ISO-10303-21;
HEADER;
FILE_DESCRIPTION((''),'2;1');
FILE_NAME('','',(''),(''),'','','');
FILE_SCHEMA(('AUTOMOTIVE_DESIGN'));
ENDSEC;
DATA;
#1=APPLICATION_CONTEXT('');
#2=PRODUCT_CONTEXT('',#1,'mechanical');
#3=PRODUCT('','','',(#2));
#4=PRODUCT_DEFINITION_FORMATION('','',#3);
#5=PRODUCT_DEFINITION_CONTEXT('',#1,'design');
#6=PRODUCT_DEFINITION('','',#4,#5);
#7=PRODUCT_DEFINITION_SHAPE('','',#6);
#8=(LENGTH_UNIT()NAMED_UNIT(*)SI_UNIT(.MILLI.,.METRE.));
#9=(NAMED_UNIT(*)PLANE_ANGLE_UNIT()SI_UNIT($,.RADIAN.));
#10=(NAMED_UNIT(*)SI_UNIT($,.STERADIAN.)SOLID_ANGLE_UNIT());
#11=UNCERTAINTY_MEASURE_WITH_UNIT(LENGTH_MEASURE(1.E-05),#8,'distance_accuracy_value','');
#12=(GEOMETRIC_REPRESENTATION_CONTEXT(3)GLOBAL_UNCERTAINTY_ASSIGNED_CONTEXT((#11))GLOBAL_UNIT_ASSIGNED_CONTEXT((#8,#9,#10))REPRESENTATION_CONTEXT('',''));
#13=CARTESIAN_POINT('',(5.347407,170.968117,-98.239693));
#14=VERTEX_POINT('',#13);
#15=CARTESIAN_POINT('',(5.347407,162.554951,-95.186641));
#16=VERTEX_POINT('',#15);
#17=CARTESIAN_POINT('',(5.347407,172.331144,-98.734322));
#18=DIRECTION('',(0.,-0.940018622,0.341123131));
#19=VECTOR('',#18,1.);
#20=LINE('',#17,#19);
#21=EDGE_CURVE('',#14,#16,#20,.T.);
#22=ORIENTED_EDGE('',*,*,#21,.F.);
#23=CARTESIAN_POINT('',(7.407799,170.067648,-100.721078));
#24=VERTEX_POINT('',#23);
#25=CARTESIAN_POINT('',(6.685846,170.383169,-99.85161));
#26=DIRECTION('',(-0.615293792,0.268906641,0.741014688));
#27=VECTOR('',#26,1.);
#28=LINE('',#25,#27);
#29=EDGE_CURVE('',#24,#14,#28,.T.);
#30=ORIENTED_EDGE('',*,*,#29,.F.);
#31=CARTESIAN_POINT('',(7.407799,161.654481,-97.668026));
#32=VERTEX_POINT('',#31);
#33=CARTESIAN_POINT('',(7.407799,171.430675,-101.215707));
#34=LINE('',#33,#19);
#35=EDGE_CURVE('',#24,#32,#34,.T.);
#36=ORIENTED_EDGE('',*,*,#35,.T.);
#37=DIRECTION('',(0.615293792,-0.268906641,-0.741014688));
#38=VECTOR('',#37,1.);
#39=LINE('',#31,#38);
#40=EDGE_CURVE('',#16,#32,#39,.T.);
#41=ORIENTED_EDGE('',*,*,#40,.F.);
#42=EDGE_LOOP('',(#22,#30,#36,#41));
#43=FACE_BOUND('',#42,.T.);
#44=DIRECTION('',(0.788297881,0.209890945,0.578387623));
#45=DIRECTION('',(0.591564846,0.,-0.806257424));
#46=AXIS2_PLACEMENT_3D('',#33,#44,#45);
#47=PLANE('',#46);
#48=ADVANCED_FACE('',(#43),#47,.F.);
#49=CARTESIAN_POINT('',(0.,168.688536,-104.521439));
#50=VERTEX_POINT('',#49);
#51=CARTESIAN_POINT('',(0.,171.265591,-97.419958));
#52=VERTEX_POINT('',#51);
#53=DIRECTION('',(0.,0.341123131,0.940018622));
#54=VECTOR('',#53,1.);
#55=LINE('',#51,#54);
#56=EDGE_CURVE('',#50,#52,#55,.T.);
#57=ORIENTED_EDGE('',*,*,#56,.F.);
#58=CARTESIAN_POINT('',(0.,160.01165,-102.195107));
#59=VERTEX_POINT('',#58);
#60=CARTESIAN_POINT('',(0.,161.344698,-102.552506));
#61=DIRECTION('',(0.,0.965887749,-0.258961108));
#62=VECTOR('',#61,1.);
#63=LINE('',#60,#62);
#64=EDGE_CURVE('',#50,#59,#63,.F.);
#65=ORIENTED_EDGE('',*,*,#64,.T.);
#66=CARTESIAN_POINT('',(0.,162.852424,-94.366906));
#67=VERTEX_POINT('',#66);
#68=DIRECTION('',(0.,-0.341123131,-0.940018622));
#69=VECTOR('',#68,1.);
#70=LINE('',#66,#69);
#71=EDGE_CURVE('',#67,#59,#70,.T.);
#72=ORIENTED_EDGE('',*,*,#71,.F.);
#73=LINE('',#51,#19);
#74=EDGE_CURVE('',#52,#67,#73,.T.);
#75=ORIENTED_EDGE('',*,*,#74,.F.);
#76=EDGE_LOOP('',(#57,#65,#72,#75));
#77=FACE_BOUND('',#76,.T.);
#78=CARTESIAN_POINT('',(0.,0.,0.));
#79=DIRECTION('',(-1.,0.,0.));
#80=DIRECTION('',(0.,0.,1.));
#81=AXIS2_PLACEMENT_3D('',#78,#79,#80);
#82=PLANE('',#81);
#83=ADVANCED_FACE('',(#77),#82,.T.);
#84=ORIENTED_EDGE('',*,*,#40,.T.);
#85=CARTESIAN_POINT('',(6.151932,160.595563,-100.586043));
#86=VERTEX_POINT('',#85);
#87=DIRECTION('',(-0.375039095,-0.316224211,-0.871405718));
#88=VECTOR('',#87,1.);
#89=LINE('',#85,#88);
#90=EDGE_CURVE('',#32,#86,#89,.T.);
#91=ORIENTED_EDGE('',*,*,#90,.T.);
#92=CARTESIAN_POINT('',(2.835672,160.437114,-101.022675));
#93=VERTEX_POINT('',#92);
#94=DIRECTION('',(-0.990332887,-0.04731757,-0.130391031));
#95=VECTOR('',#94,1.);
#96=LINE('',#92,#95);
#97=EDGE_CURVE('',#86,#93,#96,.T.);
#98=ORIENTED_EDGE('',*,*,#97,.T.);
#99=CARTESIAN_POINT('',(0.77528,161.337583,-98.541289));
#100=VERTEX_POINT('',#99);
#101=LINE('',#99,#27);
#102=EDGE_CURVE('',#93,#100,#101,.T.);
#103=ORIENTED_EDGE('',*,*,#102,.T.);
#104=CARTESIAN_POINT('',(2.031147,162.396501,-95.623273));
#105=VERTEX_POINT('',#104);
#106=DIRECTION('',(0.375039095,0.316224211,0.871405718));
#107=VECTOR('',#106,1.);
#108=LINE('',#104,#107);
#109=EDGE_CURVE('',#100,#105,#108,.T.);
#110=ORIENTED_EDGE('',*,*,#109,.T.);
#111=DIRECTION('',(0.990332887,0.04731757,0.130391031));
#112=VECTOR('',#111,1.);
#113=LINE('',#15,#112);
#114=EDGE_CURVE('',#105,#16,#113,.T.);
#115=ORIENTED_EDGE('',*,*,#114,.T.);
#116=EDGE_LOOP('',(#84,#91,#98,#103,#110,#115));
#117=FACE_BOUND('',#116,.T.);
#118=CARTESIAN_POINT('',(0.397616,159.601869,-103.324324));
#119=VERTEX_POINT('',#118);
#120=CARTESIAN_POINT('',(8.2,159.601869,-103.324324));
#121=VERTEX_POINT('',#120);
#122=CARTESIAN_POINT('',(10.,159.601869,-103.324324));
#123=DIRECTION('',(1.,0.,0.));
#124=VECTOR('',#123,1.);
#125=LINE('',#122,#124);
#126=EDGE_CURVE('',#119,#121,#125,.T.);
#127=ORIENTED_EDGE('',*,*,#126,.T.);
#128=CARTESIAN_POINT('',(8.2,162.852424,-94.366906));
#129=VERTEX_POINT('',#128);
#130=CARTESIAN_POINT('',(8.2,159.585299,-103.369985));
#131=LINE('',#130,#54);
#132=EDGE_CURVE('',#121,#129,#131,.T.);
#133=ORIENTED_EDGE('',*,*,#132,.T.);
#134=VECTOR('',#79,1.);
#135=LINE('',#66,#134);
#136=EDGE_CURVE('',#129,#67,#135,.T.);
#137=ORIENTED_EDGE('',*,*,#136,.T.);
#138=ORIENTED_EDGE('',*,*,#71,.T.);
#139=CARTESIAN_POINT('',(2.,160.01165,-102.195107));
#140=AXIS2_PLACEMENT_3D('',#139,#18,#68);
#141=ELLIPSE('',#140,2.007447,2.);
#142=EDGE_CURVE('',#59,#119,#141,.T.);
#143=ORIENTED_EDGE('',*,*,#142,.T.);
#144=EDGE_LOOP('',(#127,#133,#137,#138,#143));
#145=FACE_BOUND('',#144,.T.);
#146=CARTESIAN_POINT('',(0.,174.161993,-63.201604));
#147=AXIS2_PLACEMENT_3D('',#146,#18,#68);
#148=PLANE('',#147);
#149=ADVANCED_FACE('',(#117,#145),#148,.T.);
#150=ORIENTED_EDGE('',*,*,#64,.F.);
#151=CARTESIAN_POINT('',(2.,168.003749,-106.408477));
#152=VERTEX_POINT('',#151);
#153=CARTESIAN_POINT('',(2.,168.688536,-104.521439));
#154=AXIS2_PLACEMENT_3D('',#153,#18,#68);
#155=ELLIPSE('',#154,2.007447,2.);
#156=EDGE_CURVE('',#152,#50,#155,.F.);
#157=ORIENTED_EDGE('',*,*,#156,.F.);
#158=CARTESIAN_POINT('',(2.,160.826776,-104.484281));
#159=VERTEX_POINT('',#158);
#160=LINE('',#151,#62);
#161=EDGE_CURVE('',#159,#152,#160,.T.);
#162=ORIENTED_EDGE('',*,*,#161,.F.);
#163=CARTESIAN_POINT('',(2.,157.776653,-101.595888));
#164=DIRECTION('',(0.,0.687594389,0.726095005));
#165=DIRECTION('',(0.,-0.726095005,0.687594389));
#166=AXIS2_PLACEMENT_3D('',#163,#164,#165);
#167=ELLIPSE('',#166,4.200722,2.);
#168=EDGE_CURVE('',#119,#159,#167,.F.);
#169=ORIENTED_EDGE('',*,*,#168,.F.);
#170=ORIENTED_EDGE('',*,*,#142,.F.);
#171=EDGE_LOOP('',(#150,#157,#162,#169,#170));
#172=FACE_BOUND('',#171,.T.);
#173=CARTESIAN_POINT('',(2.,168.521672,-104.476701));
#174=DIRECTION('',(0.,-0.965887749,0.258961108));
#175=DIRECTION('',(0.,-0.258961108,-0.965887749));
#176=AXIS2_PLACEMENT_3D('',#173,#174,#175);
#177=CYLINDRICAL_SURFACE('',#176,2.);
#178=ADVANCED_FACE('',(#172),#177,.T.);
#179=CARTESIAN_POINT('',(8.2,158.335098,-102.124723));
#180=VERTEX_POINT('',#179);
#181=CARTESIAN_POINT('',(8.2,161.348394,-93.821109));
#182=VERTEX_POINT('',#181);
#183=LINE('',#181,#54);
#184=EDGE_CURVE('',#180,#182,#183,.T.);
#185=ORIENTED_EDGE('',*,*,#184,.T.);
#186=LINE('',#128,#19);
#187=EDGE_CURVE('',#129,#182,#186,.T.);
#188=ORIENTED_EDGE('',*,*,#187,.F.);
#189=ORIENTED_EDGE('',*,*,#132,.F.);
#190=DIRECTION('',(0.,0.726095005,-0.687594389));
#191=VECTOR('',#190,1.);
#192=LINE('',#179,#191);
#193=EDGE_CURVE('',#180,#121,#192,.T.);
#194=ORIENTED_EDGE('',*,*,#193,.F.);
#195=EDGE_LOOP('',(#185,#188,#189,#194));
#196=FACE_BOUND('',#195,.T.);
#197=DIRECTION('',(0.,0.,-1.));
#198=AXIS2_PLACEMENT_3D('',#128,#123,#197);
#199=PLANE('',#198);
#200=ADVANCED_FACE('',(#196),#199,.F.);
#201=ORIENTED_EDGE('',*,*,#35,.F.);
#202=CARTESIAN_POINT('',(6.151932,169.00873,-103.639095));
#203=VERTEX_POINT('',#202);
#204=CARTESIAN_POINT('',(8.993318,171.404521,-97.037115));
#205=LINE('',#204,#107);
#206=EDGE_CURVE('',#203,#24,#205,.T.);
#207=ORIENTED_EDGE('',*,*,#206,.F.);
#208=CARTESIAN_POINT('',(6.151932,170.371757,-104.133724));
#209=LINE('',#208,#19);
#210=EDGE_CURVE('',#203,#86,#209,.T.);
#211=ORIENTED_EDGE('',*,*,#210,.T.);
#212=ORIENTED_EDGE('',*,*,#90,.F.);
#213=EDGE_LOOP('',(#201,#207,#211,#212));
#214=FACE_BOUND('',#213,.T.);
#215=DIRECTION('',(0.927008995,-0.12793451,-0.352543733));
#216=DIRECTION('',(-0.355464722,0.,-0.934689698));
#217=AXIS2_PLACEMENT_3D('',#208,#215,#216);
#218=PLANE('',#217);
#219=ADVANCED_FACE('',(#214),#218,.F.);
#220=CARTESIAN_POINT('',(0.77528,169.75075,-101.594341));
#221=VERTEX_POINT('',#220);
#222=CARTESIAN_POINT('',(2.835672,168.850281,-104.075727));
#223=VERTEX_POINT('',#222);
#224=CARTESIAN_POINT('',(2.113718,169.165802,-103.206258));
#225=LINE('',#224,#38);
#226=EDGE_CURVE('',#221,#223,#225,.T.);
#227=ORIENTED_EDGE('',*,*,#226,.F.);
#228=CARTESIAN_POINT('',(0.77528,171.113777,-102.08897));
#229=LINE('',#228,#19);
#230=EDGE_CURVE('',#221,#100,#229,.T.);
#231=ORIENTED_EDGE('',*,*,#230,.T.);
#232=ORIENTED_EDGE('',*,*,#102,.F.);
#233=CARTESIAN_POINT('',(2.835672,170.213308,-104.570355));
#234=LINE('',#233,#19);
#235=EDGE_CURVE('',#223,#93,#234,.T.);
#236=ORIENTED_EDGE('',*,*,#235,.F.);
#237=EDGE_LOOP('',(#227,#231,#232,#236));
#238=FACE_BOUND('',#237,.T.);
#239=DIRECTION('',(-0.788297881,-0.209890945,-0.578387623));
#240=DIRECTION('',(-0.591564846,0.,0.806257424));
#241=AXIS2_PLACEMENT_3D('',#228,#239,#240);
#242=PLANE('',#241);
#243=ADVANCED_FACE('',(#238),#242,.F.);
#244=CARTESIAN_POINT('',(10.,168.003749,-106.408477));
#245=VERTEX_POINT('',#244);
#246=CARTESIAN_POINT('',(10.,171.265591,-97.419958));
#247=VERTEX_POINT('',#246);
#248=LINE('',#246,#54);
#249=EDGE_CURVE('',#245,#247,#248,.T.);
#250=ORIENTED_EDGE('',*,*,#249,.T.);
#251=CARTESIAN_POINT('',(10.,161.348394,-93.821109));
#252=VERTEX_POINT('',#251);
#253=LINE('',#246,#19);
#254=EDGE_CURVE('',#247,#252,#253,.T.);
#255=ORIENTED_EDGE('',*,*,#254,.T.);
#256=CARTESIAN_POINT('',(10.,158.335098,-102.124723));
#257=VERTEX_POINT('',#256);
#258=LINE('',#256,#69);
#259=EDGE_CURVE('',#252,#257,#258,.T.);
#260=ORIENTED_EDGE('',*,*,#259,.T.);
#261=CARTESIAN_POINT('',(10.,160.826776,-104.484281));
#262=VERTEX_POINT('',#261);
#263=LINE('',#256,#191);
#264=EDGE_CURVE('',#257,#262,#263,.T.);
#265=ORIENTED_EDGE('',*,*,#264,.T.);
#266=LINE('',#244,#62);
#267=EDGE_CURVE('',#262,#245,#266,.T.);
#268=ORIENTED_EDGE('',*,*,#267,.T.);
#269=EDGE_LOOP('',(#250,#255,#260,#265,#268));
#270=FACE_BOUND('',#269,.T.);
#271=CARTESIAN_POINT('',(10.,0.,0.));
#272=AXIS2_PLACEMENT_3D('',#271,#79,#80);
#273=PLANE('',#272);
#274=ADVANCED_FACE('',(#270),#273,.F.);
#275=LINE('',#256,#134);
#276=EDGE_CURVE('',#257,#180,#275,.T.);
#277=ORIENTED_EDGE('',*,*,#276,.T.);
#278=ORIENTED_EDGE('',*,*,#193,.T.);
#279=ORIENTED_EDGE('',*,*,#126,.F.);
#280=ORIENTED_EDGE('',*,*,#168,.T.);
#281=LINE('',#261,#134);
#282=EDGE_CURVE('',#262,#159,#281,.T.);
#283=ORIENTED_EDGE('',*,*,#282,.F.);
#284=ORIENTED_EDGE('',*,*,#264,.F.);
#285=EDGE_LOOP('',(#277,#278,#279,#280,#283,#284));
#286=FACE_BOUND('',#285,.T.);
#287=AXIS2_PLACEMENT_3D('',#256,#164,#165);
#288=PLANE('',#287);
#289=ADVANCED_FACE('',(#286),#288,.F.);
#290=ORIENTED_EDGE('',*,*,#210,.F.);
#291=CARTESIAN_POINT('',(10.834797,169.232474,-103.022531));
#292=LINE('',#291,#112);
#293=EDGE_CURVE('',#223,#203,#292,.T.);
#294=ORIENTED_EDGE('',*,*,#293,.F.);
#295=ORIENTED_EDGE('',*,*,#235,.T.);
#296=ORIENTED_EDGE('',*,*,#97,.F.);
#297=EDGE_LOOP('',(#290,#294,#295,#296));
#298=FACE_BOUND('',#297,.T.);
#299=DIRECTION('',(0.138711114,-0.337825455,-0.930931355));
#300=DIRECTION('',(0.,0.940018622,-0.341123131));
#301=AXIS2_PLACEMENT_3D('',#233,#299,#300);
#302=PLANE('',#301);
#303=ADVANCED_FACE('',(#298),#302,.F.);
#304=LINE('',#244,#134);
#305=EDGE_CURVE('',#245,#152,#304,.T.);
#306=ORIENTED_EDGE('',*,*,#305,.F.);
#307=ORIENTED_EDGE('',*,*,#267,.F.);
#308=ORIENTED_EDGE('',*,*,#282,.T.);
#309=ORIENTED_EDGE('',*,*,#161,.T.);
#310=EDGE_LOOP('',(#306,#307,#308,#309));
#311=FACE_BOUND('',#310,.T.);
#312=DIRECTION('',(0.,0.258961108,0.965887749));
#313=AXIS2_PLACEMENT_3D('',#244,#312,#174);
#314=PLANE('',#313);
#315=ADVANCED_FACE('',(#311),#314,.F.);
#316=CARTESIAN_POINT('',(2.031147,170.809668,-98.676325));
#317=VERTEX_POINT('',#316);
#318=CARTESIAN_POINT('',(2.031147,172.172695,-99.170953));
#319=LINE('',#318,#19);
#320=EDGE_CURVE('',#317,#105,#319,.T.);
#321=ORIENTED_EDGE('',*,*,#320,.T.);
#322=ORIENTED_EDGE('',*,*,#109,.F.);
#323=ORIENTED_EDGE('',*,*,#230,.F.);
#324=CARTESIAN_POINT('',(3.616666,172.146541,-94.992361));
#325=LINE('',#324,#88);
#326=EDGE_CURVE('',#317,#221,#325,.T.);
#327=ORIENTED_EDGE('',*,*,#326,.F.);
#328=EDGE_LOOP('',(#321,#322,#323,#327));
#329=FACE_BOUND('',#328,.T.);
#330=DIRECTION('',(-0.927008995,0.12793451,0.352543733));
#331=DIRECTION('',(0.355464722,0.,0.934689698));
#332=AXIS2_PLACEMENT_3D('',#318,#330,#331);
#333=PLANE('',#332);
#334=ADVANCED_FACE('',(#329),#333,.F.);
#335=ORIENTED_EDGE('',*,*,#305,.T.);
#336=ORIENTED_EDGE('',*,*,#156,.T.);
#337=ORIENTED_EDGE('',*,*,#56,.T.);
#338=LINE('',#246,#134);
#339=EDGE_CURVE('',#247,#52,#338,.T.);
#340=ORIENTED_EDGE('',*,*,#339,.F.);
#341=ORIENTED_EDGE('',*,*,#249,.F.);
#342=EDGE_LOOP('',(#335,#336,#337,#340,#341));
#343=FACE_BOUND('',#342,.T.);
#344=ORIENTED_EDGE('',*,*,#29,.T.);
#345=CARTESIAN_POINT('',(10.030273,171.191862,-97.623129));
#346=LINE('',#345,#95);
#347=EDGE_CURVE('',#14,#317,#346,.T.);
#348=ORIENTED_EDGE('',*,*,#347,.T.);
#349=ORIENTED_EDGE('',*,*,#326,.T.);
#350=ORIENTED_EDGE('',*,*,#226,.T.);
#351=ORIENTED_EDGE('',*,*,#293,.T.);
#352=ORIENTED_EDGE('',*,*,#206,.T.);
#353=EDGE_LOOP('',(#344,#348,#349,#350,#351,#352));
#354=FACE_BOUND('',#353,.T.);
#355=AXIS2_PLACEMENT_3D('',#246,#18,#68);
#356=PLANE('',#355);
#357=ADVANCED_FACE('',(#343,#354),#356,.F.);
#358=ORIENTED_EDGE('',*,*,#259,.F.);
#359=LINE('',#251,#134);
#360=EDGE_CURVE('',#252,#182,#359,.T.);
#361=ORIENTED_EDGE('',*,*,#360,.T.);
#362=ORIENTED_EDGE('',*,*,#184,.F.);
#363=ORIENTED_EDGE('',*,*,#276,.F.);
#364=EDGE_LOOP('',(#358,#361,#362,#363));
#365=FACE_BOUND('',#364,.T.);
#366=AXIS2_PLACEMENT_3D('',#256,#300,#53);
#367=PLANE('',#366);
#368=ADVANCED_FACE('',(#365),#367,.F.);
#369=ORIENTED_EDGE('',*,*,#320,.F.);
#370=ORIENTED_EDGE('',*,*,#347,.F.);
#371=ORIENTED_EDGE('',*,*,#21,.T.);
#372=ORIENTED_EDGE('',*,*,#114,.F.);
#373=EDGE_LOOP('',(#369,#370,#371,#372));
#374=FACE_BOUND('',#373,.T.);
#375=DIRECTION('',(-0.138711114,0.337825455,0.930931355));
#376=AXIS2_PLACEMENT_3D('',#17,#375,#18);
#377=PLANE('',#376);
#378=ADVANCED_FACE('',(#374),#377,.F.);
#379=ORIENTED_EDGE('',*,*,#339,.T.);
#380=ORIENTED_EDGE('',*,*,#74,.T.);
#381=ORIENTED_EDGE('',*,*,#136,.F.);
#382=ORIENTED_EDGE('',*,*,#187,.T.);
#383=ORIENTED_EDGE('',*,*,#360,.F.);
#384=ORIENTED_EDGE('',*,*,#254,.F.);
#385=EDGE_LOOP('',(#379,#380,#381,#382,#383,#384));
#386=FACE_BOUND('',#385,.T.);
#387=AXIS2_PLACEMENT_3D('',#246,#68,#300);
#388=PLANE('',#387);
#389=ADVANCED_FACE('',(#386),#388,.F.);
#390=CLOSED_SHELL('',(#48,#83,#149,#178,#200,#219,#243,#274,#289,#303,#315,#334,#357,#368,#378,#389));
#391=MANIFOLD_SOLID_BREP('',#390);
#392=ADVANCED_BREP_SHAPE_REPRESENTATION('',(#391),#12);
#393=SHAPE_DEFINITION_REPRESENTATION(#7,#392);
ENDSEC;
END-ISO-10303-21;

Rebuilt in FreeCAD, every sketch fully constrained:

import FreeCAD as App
import Part
import Sketcher
Q = App.Units.Quantity


def edges_at(feature, points):
    """Names of the edges that pass closest to the given points."""
    edges = feature.Shape.Edges
    near = lambda p: min(range(len(edges)), key=lambda i: edges[i].distToShape(Part.Vertex(*p))[0])
    return sorted({f"Edge{near(p) + 1}" for p in points})


def add_polygon(sketch, points):
    """Adds a closed chain of lines whose ends are joined by coincident constraints."""
    first, n = sketch.GeometryCount, len(points)
    for a, b in zip(points, points[1:] + points[:1]):
        sketch.addGeometry(Part.LineSegment(App.Vector(*a, 0), App.Vector(*b, 0)), False)
    for i in range(n):
        sketch.addConstraint(Sketcher.Constraint("Coincident", first + i, 2, first + (i + 1) % n, 1))

doc = App.newDocument("Part")
body = doc.addObject("PartDesign::Body", "Body")

sketch1 = body.newObject("Sketcher::SketchObject", "Sketch")
sketch1.AttachmentSupport = (doc.getObject("YZ_Plane"), [""])
sketch1.MapMode = "FlatFace"
add_polygon(sketch1, [(161.3, -93.8), (158.3, -102.1), (160.8, -104.5), (168, -106.4), (171.3, -97.4)])
sketch1.addConstraint([
    Sketcher.Constraint("Parallel", 0, 3),
    Sketcher.Constraint("Perpendicular", 3, 4),
    Sketcher.Constraint("Angle", 1, Q("-43.439984 deg")),
    Sketcher.Constraint("Distance", 4, 10.55),
    Sketcher.Constraint("DistanceY", 1, 2, -1, 1, 104.484281),
    Sketcher.Constraint("DistanceX", -1, 1, 2, 2, 168.003749),
    Sketcher.Constraint("DistanceX", -1, 1, 3, 2, 171.265591),
    Sketcher.Constraint("DistanceY", 3, 2, -1, 1, 97.419958),
    Sketcher.Constraint("DistanceY", 4, 2, -1, 1, 93.821109),
    Sketcher.Constraint("DistanceX", 0, 2, 1, 2, 2.491678),
])
pad1 = body.newObject("PartDesign::Pad", "Pad")
pad1.Profile = sketch1
pad1.Length = 10

sketch2 = body.newObject("Sketcher::SketchObject", "Sketch001")
sketch2.Placement = App.Placement(App.Vector(0, 96.421451, -272.737546), App.Rotation(App.Vector(1, 0, 0), App.Vector(0, 0.341123131, 0.940018622), App.Vector(0, -0.940018622, 0.341123131), "ZXY"))
add_polygon(sketch2, [(2, 189), (0.8, 185.9), (2.8, 183.3), (6.2, 183.7), (7.4, 186.8), (5.3, 189.5)])
sketch2.addConstraint([
    Sketcher.Constraint("Parallel", 0, 3),
    Sketcher.Constraint("Parallel", 1, 4),
    Sketcher.Constraint("Parallel", 2, 5),
    Sketcher.Constraint("Equal", 0, 1),
    Sketcher.Constraint("Equal", 1, 2),
    Sketcher.Constraint("Equal", 2, 3),
    Sketcher.Constraint("DistanceY", -1, 1, 1, 2, 183.2524),
    Sketcher.Constraint("DistanceX", -1, 1, 3, 2, 7.407799),
    Sketcher.Constraint("Distance", 0, 3.348632),
    Sketcher.Constraint("DistanceX", -1, 1, 0, 2, 0.77528),
    Sketcher.Constraint("DistanceY", -1, 1, 0, 2, 185.89212),
    Sketcher.Constraint("DistanceX", -1, 1, 2, 2, 6.151932),
])
pocket1 = body.newObject("PartDesign::Pocket", "Pocket")
pocket1.Profile = sketch2
pocket1.Length = 12

sketch3 = body.newObject("Sketcher::SketchObject", "Sketch002")
sketch3.Placement = App.Placement(App.Vector(0, 172.657963, -62.655807), App.Rotation(App.Vector(1, 0, 0), App.Vector(0, 0.341123131, 0.940018622), App.Vector(0, -0.940018622, 0.341123131), "ZXY"))
add_polygon(sketch3, [(8, -33), (0, -33), (0, -45), (8, -45)])
sketch3.addConstraint([
    Sketcher.Constraint("Horizontal", 0),
    Sketcher.Constraint("Vertical", 1),
    Sketcher.Constraint("Horizontal", 2),
    Sketcher.Constraint("Vertical", 3),
    Sketcher.Constraint("PointOnObject", 0, 2, -2),
    Sketcher.Constraint("DistanceX", 0, 2, 0, 1, 8.2),
    Sketcher.Constraint("DistanceY", 1, 2, 1, 1, 11.477428),
    Sketcher.Constraint("DistanceY", 0, 2, -1, 1, 33.15392),
])
pocket2 = body.newObject("PartDesign::Pocket", "Pocket001")
pocket2.Profile = sketch3
pocket2.Length = 1.6
doc.recompute()

fillet = body.newObject("PartDesign::Fillet", "Fillet")
fillet.Base = (pocket2, edges_at(pocket2, [(0, 164.415, -105.446)]))
fillet.Radius = 2

doc.recompute()
